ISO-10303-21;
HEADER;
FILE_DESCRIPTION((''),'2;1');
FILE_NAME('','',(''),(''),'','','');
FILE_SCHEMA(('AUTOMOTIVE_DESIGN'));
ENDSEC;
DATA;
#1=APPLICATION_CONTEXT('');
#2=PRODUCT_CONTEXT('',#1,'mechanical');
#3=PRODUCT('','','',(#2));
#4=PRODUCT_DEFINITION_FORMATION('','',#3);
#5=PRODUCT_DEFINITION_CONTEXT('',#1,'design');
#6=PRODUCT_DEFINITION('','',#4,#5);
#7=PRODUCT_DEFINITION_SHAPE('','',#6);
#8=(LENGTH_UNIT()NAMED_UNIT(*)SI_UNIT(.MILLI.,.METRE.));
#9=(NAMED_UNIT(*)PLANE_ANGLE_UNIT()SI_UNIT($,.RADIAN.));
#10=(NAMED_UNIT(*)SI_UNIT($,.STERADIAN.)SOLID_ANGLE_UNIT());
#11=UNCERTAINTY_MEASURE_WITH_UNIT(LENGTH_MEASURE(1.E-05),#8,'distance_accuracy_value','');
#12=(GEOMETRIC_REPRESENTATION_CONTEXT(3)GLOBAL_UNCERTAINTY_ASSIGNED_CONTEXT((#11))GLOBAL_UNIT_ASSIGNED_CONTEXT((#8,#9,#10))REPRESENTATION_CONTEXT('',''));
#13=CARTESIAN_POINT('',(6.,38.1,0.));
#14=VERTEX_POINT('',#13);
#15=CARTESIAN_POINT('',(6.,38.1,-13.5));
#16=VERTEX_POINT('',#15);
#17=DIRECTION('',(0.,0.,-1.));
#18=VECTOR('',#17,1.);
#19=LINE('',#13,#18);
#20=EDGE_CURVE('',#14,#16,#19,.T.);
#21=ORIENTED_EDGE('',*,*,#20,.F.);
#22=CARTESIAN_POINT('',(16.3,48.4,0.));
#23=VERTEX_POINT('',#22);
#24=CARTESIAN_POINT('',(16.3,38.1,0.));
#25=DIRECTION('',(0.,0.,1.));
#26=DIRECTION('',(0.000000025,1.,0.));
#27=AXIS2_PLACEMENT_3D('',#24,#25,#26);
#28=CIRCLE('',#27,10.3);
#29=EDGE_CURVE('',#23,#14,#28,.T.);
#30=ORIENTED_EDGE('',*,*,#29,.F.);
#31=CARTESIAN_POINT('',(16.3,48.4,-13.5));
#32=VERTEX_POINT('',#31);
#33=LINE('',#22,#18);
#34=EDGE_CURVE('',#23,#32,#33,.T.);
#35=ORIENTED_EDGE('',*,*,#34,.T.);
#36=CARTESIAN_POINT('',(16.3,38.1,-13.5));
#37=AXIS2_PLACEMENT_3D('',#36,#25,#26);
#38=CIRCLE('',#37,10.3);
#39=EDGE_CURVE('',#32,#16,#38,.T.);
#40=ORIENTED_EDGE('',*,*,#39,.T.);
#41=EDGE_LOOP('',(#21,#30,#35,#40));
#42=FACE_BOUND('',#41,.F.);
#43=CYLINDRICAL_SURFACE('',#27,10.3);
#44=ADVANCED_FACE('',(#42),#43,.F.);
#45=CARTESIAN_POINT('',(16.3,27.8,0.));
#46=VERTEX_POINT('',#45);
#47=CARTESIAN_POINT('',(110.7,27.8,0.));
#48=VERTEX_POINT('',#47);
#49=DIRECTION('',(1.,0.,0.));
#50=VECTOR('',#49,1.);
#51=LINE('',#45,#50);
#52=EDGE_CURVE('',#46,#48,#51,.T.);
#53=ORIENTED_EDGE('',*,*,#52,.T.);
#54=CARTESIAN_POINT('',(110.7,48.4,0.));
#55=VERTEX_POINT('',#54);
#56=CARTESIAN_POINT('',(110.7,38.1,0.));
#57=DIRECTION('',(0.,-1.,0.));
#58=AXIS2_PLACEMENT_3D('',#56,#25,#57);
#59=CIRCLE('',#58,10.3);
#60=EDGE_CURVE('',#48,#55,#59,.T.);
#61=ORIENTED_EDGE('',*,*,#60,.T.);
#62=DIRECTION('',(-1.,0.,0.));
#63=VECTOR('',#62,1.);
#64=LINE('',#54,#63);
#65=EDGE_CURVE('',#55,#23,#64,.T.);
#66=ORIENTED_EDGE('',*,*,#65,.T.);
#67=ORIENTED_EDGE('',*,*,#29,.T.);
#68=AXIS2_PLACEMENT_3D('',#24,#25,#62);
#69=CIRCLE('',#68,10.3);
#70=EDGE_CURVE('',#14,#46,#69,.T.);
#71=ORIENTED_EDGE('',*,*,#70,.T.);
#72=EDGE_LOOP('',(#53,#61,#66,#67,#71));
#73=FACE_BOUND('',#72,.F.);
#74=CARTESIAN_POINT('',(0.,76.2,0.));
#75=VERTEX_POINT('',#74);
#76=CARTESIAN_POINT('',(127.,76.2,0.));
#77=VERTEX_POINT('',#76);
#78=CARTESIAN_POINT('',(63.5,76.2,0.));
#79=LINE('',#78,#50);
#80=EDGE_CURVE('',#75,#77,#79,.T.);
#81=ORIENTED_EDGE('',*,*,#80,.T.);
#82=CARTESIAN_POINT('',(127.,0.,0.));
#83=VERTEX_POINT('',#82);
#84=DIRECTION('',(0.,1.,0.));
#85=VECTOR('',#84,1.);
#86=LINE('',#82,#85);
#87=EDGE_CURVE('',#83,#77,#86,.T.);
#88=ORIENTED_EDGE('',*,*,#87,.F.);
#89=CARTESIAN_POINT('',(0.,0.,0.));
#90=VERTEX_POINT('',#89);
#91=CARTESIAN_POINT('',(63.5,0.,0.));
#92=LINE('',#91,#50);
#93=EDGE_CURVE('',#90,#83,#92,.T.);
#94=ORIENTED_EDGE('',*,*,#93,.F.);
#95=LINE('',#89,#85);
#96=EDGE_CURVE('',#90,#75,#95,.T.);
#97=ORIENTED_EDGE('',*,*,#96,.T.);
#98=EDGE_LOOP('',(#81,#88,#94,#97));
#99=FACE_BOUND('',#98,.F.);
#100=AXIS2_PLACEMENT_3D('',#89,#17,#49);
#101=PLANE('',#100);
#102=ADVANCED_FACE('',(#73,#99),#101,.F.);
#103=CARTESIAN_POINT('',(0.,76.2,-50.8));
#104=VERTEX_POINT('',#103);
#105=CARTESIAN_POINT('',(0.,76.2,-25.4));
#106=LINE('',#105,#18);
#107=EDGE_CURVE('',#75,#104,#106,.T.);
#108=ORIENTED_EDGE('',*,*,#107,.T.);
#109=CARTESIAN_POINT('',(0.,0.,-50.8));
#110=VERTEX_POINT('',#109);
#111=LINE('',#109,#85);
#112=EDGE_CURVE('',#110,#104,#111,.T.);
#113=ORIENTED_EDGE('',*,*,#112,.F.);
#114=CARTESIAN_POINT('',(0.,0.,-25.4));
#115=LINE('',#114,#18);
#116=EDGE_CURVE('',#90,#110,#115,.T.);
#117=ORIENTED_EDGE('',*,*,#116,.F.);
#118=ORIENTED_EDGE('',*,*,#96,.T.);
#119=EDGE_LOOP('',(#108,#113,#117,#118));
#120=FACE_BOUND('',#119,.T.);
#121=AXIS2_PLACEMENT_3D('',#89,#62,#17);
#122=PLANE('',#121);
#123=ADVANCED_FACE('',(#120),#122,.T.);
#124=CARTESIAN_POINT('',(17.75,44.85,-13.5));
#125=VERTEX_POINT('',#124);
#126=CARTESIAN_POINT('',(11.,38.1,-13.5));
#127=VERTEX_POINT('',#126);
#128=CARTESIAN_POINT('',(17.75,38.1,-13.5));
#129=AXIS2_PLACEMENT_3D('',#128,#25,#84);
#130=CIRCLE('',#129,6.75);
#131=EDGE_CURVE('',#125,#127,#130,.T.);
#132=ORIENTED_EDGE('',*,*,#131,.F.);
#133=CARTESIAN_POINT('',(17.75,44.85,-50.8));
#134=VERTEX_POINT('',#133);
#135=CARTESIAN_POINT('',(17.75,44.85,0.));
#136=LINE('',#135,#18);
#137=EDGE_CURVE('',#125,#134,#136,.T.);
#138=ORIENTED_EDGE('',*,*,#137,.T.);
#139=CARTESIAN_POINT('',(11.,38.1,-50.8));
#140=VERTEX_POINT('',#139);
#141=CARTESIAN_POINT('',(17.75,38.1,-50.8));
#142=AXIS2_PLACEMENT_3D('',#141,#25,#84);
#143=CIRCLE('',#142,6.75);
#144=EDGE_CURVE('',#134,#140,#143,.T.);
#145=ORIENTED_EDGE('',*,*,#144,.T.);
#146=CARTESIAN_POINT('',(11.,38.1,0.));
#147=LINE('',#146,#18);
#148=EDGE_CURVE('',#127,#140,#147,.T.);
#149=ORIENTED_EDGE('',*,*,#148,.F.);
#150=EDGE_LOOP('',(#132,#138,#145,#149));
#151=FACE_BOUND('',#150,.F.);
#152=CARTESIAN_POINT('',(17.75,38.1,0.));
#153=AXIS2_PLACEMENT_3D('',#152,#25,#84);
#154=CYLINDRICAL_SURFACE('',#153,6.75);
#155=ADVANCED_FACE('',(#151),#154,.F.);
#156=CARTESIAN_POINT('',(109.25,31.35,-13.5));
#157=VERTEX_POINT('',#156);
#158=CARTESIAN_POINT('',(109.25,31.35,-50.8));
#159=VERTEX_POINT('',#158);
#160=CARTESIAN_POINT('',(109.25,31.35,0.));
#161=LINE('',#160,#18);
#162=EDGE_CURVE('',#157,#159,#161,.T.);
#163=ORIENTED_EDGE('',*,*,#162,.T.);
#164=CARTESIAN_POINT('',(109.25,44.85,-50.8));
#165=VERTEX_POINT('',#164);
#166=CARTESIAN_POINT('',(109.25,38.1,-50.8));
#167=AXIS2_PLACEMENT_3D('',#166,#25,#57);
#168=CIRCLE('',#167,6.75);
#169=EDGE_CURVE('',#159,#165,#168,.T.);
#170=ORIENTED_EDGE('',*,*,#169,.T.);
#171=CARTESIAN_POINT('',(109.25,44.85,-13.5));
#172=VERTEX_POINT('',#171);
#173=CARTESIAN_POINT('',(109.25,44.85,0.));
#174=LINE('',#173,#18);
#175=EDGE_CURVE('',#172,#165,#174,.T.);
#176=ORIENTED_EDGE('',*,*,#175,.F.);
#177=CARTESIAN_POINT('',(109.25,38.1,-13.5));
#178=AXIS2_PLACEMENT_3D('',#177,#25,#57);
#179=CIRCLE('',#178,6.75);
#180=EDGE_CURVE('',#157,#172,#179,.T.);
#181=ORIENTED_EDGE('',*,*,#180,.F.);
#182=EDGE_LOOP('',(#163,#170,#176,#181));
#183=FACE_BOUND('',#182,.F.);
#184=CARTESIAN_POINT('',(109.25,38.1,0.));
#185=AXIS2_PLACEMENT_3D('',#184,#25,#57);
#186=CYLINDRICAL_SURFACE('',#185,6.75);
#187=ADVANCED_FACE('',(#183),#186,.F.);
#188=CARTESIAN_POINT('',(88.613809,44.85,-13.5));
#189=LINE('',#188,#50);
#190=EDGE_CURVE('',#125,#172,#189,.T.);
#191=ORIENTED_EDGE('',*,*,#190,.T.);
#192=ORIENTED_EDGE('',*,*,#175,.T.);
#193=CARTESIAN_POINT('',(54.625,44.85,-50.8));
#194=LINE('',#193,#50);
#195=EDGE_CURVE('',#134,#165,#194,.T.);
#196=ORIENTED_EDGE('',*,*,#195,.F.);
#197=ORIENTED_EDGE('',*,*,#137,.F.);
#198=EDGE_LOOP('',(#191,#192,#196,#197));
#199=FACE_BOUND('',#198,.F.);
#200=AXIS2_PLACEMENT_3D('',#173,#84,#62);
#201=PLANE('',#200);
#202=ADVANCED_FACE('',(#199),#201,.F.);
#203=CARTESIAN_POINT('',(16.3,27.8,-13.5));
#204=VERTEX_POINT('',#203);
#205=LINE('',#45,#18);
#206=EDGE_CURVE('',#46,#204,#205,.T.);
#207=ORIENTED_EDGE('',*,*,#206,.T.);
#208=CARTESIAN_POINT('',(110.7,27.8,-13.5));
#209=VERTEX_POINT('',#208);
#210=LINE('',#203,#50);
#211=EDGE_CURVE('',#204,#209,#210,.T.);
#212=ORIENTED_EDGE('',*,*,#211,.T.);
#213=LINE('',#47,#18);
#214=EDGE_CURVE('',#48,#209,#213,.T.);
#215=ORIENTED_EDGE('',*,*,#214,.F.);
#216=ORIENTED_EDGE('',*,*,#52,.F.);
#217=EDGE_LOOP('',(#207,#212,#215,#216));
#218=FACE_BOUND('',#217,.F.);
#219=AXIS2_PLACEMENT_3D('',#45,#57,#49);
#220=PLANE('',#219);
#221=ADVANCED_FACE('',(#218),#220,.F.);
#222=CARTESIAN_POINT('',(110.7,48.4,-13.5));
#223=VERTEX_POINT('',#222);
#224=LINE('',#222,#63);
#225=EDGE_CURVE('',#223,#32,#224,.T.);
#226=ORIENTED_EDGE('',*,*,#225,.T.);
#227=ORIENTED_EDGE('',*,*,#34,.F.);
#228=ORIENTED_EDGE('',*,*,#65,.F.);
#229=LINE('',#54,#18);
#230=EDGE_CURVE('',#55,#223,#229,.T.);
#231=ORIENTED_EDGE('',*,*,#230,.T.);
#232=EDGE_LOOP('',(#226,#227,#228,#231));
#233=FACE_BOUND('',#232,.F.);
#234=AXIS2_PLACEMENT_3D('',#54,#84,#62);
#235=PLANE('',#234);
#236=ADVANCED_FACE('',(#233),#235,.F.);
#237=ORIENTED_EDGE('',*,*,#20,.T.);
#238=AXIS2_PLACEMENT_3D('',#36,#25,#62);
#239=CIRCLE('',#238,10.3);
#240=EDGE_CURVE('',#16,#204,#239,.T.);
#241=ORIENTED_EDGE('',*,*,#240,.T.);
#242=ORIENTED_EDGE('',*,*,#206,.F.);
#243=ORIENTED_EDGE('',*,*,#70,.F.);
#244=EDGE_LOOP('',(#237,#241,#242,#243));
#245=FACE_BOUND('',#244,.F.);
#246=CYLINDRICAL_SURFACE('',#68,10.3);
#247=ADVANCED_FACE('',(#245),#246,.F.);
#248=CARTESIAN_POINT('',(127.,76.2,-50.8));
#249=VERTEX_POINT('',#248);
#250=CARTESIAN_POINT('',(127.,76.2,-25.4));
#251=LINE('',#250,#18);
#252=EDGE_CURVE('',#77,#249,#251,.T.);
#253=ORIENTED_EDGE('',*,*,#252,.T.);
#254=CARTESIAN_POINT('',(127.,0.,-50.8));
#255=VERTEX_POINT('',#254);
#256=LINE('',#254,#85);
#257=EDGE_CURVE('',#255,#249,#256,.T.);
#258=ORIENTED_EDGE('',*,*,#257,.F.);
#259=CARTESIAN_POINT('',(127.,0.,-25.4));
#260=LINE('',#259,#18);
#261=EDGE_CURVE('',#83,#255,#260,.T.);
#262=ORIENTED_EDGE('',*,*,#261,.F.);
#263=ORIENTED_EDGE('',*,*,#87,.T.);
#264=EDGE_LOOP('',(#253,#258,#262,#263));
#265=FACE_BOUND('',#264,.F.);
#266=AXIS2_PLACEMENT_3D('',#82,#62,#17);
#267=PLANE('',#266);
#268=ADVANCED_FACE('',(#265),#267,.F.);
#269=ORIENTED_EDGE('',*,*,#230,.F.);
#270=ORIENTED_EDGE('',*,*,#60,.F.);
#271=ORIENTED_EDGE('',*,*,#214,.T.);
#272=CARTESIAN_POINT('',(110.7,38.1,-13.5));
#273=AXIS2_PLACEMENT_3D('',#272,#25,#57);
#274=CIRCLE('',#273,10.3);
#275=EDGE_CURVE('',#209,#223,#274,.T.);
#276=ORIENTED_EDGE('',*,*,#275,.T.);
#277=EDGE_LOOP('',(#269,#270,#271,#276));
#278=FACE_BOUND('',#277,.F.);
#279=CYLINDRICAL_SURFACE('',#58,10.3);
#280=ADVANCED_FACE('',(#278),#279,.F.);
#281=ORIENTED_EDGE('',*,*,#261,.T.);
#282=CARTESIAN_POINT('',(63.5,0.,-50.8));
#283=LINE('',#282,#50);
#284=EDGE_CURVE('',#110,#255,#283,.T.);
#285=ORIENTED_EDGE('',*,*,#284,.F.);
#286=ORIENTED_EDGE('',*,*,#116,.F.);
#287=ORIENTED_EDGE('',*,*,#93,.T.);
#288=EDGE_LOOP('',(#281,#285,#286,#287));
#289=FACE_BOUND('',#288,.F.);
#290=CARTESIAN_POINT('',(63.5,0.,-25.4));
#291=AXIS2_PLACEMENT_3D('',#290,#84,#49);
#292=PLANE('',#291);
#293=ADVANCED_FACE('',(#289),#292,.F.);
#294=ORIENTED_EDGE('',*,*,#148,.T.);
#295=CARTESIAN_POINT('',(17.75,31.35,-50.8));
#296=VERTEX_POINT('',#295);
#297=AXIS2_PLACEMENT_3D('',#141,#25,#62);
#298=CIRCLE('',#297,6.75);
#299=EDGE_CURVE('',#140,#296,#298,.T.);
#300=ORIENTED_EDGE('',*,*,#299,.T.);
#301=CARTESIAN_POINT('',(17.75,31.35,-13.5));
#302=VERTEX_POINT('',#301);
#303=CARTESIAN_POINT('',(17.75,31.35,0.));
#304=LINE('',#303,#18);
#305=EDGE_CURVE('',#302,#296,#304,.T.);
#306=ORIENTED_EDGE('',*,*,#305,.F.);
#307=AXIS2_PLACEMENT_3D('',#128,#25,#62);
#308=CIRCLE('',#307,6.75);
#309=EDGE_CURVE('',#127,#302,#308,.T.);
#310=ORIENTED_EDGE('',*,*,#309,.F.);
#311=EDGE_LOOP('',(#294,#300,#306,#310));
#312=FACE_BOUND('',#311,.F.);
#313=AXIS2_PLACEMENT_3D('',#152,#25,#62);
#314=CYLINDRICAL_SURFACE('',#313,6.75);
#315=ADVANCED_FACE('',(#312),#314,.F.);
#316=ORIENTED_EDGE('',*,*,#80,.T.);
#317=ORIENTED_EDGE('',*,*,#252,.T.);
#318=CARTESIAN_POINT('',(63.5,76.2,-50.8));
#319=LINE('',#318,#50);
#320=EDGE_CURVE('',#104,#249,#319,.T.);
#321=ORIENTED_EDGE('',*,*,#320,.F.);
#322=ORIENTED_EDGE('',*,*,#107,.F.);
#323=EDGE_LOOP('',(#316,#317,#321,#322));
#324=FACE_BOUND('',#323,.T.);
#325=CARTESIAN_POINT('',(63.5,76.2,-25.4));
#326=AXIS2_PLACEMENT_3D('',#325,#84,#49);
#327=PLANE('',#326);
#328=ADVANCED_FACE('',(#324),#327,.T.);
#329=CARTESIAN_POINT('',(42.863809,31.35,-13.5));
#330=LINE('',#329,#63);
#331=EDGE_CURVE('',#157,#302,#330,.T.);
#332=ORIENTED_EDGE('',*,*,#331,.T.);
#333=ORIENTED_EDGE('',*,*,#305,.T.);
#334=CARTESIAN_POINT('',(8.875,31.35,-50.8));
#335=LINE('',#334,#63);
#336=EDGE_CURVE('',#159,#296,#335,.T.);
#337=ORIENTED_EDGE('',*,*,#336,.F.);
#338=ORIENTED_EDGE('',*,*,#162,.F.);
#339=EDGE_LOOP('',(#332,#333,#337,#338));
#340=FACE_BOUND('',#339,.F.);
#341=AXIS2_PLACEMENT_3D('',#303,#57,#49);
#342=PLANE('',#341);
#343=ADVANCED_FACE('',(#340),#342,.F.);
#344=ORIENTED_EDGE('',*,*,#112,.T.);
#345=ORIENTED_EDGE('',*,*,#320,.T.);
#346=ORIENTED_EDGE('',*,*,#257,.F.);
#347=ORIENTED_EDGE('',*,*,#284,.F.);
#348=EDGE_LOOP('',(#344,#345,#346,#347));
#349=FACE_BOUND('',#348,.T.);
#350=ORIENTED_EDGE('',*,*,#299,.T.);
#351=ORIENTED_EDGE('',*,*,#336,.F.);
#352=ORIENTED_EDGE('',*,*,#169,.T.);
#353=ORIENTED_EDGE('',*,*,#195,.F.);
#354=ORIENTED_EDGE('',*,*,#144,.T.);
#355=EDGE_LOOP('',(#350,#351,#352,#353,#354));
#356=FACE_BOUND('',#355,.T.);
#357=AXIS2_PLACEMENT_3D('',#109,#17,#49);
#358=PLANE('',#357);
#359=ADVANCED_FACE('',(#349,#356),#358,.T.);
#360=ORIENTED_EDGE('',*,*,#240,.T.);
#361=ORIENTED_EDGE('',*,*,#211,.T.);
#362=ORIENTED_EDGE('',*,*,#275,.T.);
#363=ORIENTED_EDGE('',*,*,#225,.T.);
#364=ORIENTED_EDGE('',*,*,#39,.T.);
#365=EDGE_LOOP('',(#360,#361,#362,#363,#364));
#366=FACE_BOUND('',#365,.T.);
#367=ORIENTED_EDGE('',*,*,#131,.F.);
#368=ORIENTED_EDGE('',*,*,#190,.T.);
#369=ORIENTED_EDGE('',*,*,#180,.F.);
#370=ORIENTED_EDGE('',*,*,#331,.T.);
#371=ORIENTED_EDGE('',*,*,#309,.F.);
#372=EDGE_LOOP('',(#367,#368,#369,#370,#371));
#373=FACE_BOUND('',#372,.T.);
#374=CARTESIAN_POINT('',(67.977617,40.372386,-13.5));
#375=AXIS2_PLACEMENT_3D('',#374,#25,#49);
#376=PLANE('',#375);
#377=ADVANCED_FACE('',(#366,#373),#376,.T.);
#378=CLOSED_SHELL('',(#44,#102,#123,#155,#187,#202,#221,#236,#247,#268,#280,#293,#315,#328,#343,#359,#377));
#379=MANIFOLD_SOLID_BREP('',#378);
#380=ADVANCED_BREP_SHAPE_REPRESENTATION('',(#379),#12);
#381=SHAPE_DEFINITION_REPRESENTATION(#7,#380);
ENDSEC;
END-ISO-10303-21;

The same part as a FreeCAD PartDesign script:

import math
import FreeCAD as App
import Part
import Sketcher
from FreeCAD import Vector
Q = App.Units.Quantity

doc = App.newDocument("Part")
params = doc.addObject("Spreadsheet::Sheet", "Params")
for row, (alias, value) in enumerate([
    ("sketch1_width", "127 mm"),
    ("sketch1_height", "50.8 mm"),
    ("pad1_length", "76.2 mm"),
    ("sketch2_radius", "6.75 mm"),
    ("sketch2_width", "91.5 mm"),
    ("sketch3_radius", "10.3 mm"),
    ("sketch3_width", "94.4 mm"),
    ("pocket2_length", "13.5 mm"),
], start=1):
    params.set(f"A{row}", alias)
    params.set(f"B{row}", "=" + value)
    params.setAlias(f"B{row}", alias)

body = doc.addObject("PartDesign::Body", "Body")

# Sketch on XZ plane
sketch1 = doc.addObject("Sketcher::SketchObject", "Sketch")
body.addObject(sketch1)
sketch1.AttachmentSupport = (doc.XZ_Plane, [""])
sketch1.MapMode = "FlatFace"
sketch1.addGeometry([
    Part.LineSegment(Vector(0, -51, 0), Vector(0, 0, 0)),
    Part.LineSegment(Vector(0, 0, 0), Vector(127, 0, 0)),
    Part.LineSegment(Vector(127, 0, 0), Vector(127, -51, 0)),
    Part.LineSegment(Vector(127, -51, 0), Vector(0, -51, 0)),
], False)
sketch1.addConstraint([
    Sketcher.Constraint("Coincident", 0, 2, 1, 1),
    Sketcher.Constraint("Coincident", 1, 2, 2, 1),
    Sketcher.Constraint("Coincident", 2, 2, 3, 1),
    Sketcher.Constraint("Coincident", 3, 2, 0, 1),
    Sketcher.Constraint("Vertical", 0),
    Sketcher.Constraint("Horizontal", 1),
    Sketcher.Constraint("Vertical", 2),
    Sketcher.Constraint("Horizontal", 3),
    Sketcher.Constraint("Coincident", 0, 2, -1, 1),
    Sketcher.Constraint("DistanceX", 1, 1, 1, 2, Q("127 mm")),
    Sketcher.Constraint("DistanceY", 0, 1, 0, 2, Q("50.8 mm")),
])
sketch1.setExpression("Constraints[9]", "Params.sketch1_width")
sketch1.setExpression("Constraints[10]", "Params.sketch1_height")
pad1 = doc.addObject("PartDesign::Pad", "Pad")
body.addObject(pad1)
pad1.Profile = sketch1
pad1.setExpression("Length", "Params.pad1_length")
pad1.Reversed = True

# Sketch on XY plane
sketch2 = doc.addObject("Sketcher::SketchObject", "Sketch001")
body.addObject(sketch2)
sketch2.AttachmentSupport = (doc.XY_Plane, [""])
sketch2.MapMode = "FlatFace"
sketch2.addGeometry([
    Part.LineSegment(Vector(18, 31, 0), Vector(109, 31, 0)),  # 0
    Part.ArcOfCircle(Part.Circle(Vector(109, 38, 0), Vector(0, 0, 1), 7), math.radians(-90), math.radians(90)),  # 1
    Part.LineSegment(Vector(109, 45, 0), Vector(18, 45, 0)),  # 2
    Part.ArcOfCircle(Part.Circle(Vector(18, 38, 0), Vector(0, 0, 1), 7), math.radians(90), math.radians(180)),  # 3
    Part.ArcOfCircle(Part.Circle(Vector(18, 38, 0), Vector(0, 0, 1), 7), math.radians(180), math.radians(270)),  # 4
], False)
sketch2.addConstraint([
    Sketcher.Constraint("Tangent", 0, 2, 1, 1),
    Sketcher.Constraint("Tangent", 1, 2, 2, 1),
    Sketcher.Constraint("Tangent", 2, 2, 3, 1),
    Sketcher.Constraint("Tangent", 3, 2, 4, 1),
    Sketcher.Constraint("Tangent", 4, 2, 0, 1),
    Sketcher.Constraint("Horizontal", 0),
    Sketcher.Constraint("Horizontal", 2),
    Sketcher.Constraint("Equal", 1, 3),
    Sketcher.Constraint("Horizontal", 4, 3, 3, 2),
    Sketcher.Constraint("Radius", 1, Q("6.75 mm")),
    Sketcher.Constraint("DistanceX", 0, 1, 0, 2, Q("91.5 mm")),
    Sketcher.Constraint("DistanceX", -1, 1, 3, 2, Q("11 mm")),
    Sketcher.Constraint("DistanceY", -1, 1, 1, 3, Q("38.1 mm")),
])
sketch2.setExpression("Constraints[9]", "Params.sketch2_radius")
sketch2.setExpression("Constraints[10]", "Params.sketch2_width")
pocket1 = doc.addObject("PartDesign::Pocket", "Pocket")
body.addObject(pocket1)
pocket1.Profile = sketch2
pocket1.Type = "ThroughAll"

# Sketch on XY plane
sketch3 = doc.addObject("Sketcher::SketchObject", "Sketch002")
body.addObject(sketch3)
sketch3.AttachmentSupport = (doc.XY_Plane, [""])
sketch3.MapMode = "FlatFace"
sketch3.addGeometry([
    Part.ArcOfCircle(Part.Circle(Vector(16, 38, 0), Vector(0, 0, 1), 10), math.radians(90), math.radians(180)),  # 0
    Part.ArcOfCircle(Part.Circle(Vector(16, 38, 0), Vector(0, 0, 1), 10), math.radians(-180), math.radians(-90)),  # 1
    Part.LineSegment(Vector(16, 28, 0), Vector(111, 28, 0)),  # 2
    Part.ArcOfCircle(Part.Circle(Vector(111, 38, 0), Vector(0, 0, 1), 10), math.radians(-90), math.radians(90)),  # 3
    Part.LineSegment(Vector(111, 48, 0), Vector(16, 48, 0)),  # 4
], False)
sketch3.addConstraint([
    Sketcher.Constraint("Tangent", 0, 2, 1, 1),
    Sketcher.Constraint("Tangent", 1, 2, 2, 1),
    Sketcher.Constraint("Tangent", 2, 2, 3, 1),
    Sketcher.Constraint("Tangent", 3, 2, 4, 1),
    Sketcher.Constraint("Tangent", 4, 2, 0, 1),
    Sketcher.Constraint("Horizontal", 2),
    Sketcher.Constraint("Horizontal", 4),
    Sketcher.Constraint("Equal", 0, 1),
    Sketcher.Constraint("Horizontal", 3, 3, 0, 2),
    Sketcher.Constraint("Radius", 0, Q("10.3 mm")),
    Sketcher.Constraint("DistanceX", 2, 1, 2, 2, Q("94.4 mm")),
    Sketcher.Constraint("DistanceX", -1, 1, 0, 2, Q("6 mm")),
    Sketcher.Constraint("DistanceY", -1, 1, 0, 3, Q("38.1 mm")),
])
sketch3.setExpression("Constraints[9]", "Params.sketch3_radius")
sketch3.setExpression("Constraints[10]", "Params.sketch3_width")
pocket2 = doc.addObject("PartDesign::Pocket", "Pocket001")
body.addObject(pocket2)
pocket2.Profile = sketch3
pocket2.setExpression("Length", "Params.pocket2_length")

doc.recompute()
